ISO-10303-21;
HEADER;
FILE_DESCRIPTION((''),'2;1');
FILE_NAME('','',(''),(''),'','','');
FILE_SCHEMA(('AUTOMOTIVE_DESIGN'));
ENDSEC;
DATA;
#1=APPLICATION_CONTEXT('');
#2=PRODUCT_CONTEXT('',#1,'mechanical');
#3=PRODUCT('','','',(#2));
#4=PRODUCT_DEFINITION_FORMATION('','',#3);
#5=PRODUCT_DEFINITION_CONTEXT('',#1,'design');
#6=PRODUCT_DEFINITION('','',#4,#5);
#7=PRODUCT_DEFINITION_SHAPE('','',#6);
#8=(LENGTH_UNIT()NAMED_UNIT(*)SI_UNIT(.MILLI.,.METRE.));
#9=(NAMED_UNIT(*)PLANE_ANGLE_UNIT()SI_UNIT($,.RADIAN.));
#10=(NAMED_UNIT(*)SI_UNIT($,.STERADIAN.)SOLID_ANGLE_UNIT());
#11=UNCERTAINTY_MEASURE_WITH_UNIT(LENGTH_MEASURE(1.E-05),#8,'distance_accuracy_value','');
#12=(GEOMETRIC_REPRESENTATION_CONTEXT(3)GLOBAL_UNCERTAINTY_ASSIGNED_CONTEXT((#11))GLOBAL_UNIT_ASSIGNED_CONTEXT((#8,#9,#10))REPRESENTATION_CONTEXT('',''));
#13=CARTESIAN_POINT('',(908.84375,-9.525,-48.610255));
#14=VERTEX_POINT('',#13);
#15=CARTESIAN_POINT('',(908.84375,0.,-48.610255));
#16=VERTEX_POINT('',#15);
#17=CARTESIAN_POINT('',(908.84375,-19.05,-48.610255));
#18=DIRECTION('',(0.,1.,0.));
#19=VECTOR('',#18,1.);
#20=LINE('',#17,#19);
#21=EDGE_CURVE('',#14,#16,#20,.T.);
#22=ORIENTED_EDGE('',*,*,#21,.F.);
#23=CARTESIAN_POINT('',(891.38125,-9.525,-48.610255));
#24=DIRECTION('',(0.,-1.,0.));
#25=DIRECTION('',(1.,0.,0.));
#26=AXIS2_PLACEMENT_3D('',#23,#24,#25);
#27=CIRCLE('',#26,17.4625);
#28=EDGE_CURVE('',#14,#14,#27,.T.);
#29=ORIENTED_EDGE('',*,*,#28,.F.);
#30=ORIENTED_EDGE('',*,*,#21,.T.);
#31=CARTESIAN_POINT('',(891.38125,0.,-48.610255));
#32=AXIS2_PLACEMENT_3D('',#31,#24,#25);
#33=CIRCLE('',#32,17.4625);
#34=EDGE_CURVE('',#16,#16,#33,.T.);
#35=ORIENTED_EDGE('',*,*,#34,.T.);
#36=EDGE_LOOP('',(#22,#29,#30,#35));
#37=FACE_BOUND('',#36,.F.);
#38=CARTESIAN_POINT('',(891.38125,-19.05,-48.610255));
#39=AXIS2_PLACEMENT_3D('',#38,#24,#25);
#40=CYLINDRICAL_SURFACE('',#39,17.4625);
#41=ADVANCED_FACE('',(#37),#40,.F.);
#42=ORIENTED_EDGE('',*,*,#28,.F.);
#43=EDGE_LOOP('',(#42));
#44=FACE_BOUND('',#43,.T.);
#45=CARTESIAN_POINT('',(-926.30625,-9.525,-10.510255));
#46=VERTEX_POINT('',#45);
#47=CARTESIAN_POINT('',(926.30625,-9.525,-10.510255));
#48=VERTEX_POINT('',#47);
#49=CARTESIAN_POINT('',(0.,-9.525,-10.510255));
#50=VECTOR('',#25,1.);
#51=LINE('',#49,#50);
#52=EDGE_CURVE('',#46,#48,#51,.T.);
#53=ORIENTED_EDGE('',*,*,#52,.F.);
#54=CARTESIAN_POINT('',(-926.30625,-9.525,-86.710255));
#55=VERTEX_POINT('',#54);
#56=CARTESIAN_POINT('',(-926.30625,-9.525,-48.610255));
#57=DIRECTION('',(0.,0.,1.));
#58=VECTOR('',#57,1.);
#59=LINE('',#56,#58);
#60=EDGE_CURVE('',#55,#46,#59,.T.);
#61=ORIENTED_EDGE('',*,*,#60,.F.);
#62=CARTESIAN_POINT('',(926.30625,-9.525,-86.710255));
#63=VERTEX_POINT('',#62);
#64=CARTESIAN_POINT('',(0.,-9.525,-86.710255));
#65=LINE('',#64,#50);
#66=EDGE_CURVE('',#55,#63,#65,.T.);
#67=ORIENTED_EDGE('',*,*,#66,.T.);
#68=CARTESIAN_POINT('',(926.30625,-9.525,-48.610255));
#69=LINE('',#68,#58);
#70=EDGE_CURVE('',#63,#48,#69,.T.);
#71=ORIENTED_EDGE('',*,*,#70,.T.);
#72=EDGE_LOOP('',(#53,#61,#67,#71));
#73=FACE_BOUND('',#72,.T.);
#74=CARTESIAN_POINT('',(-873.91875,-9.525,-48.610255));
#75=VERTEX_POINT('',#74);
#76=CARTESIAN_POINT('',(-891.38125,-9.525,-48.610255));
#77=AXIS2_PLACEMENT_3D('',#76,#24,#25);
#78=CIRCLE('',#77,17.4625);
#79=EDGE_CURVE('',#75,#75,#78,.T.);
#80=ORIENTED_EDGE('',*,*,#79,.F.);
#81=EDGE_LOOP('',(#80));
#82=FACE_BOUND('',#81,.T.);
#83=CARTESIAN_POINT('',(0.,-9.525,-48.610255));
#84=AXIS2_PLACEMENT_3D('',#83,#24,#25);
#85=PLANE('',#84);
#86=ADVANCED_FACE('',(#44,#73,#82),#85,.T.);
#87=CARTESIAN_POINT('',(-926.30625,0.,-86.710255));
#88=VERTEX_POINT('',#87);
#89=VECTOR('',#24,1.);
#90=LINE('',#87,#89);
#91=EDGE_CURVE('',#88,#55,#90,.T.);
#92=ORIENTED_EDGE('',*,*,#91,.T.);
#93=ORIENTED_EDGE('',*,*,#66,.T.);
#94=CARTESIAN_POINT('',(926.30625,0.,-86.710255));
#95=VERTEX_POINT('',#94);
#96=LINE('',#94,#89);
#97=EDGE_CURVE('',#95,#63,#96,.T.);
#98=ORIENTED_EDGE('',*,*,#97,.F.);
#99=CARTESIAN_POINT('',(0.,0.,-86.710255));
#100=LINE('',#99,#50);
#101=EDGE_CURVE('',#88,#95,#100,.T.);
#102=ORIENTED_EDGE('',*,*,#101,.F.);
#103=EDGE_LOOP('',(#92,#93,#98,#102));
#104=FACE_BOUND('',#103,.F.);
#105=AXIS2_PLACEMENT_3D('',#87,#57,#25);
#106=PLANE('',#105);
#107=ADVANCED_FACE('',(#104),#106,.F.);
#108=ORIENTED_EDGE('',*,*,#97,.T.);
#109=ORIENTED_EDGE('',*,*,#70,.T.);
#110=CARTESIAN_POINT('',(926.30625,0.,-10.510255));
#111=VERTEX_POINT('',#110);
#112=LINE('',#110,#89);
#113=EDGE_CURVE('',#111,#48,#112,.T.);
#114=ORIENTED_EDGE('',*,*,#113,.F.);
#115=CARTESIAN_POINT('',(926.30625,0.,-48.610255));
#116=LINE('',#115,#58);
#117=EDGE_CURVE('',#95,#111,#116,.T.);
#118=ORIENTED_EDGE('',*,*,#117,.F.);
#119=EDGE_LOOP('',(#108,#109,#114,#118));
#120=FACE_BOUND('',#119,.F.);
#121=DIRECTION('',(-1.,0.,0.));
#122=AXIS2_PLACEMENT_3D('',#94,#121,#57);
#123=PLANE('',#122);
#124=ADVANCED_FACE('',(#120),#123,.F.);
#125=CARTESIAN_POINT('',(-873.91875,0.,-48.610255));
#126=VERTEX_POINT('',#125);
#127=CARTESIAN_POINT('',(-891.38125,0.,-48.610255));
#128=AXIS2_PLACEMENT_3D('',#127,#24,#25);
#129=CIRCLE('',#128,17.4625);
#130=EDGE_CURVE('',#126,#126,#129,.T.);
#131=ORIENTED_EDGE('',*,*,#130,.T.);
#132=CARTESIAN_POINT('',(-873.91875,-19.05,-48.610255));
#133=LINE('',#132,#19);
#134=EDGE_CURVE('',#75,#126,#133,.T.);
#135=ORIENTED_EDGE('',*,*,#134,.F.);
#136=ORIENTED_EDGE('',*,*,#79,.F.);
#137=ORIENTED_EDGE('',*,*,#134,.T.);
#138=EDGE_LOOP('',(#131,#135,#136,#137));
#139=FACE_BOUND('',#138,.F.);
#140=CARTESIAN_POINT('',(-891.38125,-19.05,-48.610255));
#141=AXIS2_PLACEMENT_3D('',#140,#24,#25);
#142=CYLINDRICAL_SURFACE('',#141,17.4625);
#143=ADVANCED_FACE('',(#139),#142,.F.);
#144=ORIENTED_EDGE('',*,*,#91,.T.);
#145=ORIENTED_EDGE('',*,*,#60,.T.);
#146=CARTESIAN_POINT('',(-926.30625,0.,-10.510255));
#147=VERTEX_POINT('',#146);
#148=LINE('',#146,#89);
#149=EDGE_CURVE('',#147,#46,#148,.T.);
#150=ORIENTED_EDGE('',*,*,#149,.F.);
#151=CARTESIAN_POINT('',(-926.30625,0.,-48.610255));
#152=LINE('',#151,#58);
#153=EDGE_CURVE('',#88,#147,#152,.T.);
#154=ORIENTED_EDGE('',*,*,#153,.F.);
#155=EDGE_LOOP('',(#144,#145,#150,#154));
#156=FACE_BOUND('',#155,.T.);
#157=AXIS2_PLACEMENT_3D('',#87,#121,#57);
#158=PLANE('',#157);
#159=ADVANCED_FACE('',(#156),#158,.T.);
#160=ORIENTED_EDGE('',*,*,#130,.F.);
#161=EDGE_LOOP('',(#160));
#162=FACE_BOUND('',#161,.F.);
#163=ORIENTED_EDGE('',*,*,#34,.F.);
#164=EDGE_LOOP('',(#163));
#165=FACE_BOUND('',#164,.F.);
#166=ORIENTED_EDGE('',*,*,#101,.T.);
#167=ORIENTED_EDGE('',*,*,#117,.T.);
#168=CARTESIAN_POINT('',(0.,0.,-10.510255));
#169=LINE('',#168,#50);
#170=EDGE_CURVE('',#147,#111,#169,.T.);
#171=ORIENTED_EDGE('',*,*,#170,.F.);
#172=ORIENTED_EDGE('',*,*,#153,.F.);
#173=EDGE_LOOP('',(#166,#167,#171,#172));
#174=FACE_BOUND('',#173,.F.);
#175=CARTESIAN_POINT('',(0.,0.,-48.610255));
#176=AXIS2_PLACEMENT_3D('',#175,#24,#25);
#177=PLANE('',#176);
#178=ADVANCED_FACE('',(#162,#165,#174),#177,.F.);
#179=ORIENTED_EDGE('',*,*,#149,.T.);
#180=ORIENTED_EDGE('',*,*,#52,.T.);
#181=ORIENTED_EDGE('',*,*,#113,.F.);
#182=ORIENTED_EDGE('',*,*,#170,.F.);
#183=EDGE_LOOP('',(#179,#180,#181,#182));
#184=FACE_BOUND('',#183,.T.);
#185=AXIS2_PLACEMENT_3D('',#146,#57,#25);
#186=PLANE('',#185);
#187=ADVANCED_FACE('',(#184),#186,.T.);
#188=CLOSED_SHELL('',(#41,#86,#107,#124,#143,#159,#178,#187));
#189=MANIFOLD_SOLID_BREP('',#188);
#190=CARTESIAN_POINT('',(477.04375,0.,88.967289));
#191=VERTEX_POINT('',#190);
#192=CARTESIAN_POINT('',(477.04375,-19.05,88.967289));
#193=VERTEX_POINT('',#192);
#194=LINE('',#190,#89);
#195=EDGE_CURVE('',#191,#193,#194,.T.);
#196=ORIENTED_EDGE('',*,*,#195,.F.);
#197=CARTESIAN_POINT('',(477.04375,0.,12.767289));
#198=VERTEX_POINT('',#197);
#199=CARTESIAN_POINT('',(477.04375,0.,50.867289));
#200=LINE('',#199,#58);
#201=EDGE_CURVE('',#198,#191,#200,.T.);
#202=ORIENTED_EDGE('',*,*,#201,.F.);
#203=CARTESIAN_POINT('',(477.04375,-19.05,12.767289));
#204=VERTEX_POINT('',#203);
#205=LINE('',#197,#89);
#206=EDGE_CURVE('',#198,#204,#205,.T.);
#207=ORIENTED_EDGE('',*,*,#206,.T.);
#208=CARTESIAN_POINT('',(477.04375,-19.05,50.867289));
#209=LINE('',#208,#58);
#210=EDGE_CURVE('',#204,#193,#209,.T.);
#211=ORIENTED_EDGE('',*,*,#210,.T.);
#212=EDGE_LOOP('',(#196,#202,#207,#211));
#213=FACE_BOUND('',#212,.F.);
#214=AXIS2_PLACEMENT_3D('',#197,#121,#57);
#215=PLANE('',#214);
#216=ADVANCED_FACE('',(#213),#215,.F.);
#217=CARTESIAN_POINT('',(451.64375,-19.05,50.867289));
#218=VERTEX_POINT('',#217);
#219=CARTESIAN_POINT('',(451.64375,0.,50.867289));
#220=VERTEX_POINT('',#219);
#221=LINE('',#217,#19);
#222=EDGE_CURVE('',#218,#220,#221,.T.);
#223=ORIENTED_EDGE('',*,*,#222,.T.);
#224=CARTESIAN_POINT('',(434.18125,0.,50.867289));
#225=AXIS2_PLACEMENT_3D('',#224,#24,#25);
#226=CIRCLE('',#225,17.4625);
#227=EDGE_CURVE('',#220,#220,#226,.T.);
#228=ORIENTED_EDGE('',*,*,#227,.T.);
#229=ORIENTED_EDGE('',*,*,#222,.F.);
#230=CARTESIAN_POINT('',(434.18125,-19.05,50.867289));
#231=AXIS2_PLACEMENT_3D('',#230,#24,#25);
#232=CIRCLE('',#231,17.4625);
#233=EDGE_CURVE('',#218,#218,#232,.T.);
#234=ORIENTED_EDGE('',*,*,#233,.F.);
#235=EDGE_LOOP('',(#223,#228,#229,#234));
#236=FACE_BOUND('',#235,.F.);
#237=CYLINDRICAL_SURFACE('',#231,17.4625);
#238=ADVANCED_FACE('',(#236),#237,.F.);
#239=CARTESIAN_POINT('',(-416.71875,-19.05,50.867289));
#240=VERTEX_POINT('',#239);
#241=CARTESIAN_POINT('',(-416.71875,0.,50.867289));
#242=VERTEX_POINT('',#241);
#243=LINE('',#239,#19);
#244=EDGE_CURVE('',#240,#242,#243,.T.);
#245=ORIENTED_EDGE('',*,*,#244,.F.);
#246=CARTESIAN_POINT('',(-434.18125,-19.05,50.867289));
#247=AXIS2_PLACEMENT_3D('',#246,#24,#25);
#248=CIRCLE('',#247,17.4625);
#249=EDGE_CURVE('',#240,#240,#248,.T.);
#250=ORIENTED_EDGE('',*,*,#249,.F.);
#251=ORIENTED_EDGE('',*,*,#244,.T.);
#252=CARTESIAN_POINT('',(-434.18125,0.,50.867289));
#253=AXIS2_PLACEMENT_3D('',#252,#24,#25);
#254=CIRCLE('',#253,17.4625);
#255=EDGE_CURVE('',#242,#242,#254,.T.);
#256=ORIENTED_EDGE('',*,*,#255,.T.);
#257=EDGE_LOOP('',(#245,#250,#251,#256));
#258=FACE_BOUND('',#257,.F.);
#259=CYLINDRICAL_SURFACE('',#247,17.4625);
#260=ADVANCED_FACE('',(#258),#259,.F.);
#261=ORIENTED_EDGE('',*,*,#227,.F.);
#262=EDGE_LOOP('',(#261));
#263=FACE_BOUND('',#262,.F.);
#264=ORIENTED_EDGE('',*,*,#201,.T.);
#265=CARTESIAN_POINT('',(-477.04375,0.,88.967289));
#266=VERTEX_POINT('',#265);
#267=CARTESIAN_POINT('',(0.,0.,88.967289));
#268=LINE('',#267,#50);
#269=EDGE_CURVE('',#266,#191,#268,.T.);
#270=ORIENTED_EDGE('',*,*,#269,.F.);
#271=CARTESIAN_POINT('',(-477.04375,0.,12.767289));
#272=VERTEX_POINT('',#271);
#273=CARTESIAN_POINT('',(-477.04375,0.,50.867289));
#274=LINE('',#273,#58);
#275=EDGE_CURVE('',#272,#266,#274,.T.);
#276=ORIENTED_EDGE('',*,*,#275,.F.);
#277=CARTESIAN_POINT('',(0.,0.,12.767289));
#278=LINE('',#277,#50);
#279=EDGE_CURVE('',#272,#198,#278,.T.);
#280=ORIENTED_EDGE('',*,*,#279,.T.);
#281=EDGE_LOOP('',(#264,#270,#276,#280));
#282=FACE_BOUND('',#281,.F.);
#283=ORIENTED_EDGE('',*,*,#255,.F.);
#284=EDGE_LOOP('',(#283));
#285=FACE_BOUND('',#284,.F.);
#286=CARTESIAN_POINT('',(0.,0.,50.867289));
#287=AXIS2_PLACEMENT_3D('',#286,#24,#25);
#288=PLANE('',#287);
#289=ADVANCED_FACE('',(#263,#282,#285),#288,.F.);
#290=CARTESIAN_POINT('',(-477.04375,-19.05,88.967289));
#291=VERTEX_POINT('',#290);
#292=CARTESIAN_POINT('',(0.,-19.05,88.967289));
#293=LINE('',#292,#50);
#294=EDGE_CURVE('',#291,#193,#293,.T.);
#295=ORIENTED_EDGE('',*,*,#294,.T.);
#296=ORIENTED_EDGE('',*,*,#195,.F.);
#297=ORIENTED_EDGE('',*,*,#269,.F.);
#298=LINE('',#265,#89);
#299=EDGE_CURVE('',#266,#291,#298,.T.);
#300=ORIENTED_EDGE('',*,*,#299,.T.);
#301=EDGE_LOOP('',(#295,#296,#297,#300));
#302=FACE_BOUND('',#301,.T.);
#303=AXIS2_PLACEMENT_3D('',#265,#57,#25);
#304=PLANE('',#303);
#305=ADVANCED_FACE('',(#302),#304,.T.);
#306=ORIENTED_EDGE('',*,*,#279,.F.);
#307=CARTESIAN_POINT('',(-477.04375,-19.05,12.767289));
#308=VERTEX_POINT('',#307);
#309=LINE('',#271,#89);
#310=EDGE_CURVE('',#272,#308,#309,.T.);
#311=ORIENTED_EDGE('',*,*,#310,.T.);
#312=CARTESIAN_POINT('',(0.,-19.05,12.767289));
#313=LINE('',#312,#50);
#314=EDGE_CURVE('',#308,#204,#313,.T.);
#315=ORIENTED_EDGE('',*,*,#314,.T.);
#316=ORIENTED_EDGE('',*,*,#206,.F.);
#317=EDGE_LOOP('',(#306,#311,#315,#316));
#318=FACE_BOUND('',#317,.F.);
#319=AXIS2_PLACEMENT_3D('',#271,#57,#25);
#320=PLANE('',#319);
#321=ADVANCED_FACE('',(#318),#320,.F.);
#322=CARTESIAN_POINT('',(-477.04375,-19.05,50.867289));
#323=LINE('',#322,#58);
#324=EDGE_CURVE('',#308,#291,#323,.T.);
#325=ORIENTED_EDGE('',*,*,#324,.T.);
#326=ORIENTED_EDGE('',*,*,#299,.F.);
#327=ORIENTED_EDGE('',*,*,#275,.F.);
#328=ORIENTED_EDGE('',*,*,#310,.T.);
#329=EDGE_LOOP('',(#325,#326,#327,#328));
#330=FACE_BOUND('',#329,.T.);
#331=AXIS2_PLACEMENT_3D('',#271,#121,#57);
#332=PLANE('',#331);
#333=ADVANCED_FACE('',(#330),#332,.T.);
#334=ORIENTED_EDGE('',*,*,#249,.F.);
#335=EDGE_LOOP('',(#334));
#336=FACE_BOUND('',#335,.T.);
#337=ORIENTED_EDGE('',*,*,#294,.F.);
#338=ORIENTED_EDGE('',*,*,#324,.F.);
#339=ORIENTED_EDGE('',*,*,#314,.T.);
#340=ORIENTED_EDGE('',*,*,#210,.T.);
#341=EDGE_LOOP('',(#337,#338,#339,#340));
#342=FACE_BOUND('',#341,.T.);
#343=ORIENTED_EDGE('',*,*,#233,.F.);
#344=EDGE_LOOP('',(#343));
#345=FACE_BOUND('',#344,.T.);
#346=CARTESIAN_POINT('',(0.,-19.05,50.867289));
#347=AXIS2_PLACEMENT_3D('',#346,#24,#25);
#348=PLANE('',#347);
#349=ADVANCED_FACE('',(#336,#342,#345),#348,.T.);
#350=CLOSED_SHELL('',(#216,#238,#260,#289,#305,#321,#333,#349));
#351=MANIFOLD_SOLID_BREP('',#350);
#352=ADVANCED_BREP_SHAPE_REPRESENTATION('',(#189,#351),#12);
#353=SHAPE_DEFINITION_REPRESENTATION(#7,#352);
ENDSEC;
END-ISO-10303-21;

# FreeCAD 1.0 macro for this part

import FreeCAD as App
import Part
import Sketcher
Q = App.Units.Quantity


def add_polygon(sketch, points):
    """Adds a closed chain of lines whose ends are joined by coincident constraints."""
    first, n = sketch.GeometryCount, len(points)
    for a, b in zip(points, points[1:] + points[:1]):
        sketch.addGeometry(Part.LineSegment(App.Vector(*a, 0), App.Vector(*b, 0)), False)
    for i in range(n):
        sketch.addConstraint(Sketcher.Constraint("Coincident", first + i, 2, first + (i + 1) % n, 1))

doc = App.newDocument("Part")
body = doc.addObject("PartDesign::Body", "Body")

# Sketch on XZ plane
sketch1 = body.newObject("Sketcher::SketchObject", "Sketch")
sketch1.AttachmentSupport = (doc.getObject("XZ_Plane"), [""])
sketch1.MapMode = "FlatFace"
add_polygon(sketch1, [(-477, 89), (-477, 13), (477, 13), (477, 89)])  # lines 0-3
sketch1.addConstraint([
    Sketcher.Constraint("Vertical", 0),
    Sketcher.Constraint("Horizontal", 1),
    Sketcher.Constraint("Vertical", 2),
    Sketcher.Constraint("Horizontal", 3),
    Sketcher.Constraint("DistanceY", 0, 2, 0, 1, Q("3 in")),
    Sketcher.Constraint("DistanceX", 1, 1, 1, 2, Q("37.5625 in")),
    Sketcher.Constraint("DistanceX", 0, 2, -1, 1, Q("18.78125 in")),
    Sketcher.Constraint("DistanceY", -1, 1, 0, 2, 12.767289),
])
pad1 = body.newObject("PartDesign::Pad", "Pad")
pad1.Profile = sketch1
pad1.Length = Q("0.75 in")
body2 = doc.addObject("PartDesign::Body", "Body001")

# Sketch on XZ plane
sketch2 = body2.newObject("Sketcher::SketchObject", "Sketch001")
sketch2.AttachmentSupport = (doc.getObject("XZ_Plane001"), [""])
sketch2.MapMode = "FlatFace"
add_polygon(sketch2, [(-926, -11), (-926, -87), (926, -87), (926, -11)])  # lines 0-3
sketch2.addConstraint([
    Sketcher.Constraint("Vertical", 0),
    Sketcher.Constraint("Horizontal", 1),
    Sketcher.Constraint("Vertical", 2),
    Sketcher.Constraint("Horizontal", 3),
    Sketcher.Constraint("DistanceY", 0, 2, 0, 1, Q("3 in")),
    Sketcher.Constraint("DistanceX", 1, 1, 1, 2, Q("72.9375 in")),
    Sketcher.Constraint("DistanceX", 0, 2, -1, 1, Q("36.46875 in")),
    Sketcher.Constraint("DistanceY", 0, 2, -1, 1, 86.710255),
])
pad2 = body2.newObject("PartDesign::Pad", "Pad001")
pad2.Profile = sketch2
pad2.Length = Q("0.375 in")
body3 = doc.addObject("PartDesign::Body", "Body002")
body3.AllowCompound = True

# Sketch on XZ plane
sketch3 = body3.newObject("Sketcher::SketchObject", "Sketch002")
sketch3.AttachmentSupport = (doc.getObject("XZ_Plane002"), [""])
sketch3.MapMode = "FlatFace"
sketch3.AttachmentOffset = App.Placement(App.Vector(0, 0, 0.75 * 25.4), App.Rotation())
sketch3.addGeometry([
    Part.Circle(App.Vector(-434, 51, 0), App.Vector(0, 0, 1), 17),
    Part.Circle(App.Vector(434, 51, 0), App.Vector(0, 0, 1), 17),
    Part.Circle(App.Vector(891, -49, 0), App.Vector(0, 0, 1), 17),
    Part.Circle(App.Vector(-891, -49, 0), App.Vector(0, 0, 1), 17),
], False)
sketch3.addConstraint([
    Sketcher.Constraint("Equal", 0, 1),
    Sketcher.Constraint("Equal", 1, 2),
    Sketcher.Constraint("Equal", 2, 3),
    Sketcher.Constraint("Symmetric", 0, 3, 1, 3, -2),
    Sketcher.Constraint("Symmetric", 2, 3, 3, 3, -2),
    Sketcher.Constraint("Diameter", 0, Q("1.375 in")),
    Sketcher.Constraint("DistanceX", 1, 3, 2, 3, Q("18 in")),
    Sketcher.Constraint("DistanceX", 0, 3, -1, 1, Q("17.09375 in")),
    Sketcher.Constraint("DistanceY", -1, 1, 0, 3, 50.867289),
    Sketcher.Constraint("DistanceY", 2, 3, -1, 1, 48.610255),
])
pad3 = body3.newObject("PartDesign::Pad", "Pad002")
pad3.Profile = sketch3
pad3.Length = 19.051
pad3.Reversed = True
doc.recompute()

body4 = doc.addObject("PartDesign::Body", "Body003")
body4.BaseFeature = body3
boolean = body.newObject("PartDesign::Boolean", "Boolean")
boolean.Type = "Cut"
boolean.addObjects([body4])
doc.recompute()

boolean2 = body2.newObject("PartDesign::Boolean", "Boolean001")
boolean2.Type = "Cut"
boolean2.addObjects([body3])

doc.recompute()
